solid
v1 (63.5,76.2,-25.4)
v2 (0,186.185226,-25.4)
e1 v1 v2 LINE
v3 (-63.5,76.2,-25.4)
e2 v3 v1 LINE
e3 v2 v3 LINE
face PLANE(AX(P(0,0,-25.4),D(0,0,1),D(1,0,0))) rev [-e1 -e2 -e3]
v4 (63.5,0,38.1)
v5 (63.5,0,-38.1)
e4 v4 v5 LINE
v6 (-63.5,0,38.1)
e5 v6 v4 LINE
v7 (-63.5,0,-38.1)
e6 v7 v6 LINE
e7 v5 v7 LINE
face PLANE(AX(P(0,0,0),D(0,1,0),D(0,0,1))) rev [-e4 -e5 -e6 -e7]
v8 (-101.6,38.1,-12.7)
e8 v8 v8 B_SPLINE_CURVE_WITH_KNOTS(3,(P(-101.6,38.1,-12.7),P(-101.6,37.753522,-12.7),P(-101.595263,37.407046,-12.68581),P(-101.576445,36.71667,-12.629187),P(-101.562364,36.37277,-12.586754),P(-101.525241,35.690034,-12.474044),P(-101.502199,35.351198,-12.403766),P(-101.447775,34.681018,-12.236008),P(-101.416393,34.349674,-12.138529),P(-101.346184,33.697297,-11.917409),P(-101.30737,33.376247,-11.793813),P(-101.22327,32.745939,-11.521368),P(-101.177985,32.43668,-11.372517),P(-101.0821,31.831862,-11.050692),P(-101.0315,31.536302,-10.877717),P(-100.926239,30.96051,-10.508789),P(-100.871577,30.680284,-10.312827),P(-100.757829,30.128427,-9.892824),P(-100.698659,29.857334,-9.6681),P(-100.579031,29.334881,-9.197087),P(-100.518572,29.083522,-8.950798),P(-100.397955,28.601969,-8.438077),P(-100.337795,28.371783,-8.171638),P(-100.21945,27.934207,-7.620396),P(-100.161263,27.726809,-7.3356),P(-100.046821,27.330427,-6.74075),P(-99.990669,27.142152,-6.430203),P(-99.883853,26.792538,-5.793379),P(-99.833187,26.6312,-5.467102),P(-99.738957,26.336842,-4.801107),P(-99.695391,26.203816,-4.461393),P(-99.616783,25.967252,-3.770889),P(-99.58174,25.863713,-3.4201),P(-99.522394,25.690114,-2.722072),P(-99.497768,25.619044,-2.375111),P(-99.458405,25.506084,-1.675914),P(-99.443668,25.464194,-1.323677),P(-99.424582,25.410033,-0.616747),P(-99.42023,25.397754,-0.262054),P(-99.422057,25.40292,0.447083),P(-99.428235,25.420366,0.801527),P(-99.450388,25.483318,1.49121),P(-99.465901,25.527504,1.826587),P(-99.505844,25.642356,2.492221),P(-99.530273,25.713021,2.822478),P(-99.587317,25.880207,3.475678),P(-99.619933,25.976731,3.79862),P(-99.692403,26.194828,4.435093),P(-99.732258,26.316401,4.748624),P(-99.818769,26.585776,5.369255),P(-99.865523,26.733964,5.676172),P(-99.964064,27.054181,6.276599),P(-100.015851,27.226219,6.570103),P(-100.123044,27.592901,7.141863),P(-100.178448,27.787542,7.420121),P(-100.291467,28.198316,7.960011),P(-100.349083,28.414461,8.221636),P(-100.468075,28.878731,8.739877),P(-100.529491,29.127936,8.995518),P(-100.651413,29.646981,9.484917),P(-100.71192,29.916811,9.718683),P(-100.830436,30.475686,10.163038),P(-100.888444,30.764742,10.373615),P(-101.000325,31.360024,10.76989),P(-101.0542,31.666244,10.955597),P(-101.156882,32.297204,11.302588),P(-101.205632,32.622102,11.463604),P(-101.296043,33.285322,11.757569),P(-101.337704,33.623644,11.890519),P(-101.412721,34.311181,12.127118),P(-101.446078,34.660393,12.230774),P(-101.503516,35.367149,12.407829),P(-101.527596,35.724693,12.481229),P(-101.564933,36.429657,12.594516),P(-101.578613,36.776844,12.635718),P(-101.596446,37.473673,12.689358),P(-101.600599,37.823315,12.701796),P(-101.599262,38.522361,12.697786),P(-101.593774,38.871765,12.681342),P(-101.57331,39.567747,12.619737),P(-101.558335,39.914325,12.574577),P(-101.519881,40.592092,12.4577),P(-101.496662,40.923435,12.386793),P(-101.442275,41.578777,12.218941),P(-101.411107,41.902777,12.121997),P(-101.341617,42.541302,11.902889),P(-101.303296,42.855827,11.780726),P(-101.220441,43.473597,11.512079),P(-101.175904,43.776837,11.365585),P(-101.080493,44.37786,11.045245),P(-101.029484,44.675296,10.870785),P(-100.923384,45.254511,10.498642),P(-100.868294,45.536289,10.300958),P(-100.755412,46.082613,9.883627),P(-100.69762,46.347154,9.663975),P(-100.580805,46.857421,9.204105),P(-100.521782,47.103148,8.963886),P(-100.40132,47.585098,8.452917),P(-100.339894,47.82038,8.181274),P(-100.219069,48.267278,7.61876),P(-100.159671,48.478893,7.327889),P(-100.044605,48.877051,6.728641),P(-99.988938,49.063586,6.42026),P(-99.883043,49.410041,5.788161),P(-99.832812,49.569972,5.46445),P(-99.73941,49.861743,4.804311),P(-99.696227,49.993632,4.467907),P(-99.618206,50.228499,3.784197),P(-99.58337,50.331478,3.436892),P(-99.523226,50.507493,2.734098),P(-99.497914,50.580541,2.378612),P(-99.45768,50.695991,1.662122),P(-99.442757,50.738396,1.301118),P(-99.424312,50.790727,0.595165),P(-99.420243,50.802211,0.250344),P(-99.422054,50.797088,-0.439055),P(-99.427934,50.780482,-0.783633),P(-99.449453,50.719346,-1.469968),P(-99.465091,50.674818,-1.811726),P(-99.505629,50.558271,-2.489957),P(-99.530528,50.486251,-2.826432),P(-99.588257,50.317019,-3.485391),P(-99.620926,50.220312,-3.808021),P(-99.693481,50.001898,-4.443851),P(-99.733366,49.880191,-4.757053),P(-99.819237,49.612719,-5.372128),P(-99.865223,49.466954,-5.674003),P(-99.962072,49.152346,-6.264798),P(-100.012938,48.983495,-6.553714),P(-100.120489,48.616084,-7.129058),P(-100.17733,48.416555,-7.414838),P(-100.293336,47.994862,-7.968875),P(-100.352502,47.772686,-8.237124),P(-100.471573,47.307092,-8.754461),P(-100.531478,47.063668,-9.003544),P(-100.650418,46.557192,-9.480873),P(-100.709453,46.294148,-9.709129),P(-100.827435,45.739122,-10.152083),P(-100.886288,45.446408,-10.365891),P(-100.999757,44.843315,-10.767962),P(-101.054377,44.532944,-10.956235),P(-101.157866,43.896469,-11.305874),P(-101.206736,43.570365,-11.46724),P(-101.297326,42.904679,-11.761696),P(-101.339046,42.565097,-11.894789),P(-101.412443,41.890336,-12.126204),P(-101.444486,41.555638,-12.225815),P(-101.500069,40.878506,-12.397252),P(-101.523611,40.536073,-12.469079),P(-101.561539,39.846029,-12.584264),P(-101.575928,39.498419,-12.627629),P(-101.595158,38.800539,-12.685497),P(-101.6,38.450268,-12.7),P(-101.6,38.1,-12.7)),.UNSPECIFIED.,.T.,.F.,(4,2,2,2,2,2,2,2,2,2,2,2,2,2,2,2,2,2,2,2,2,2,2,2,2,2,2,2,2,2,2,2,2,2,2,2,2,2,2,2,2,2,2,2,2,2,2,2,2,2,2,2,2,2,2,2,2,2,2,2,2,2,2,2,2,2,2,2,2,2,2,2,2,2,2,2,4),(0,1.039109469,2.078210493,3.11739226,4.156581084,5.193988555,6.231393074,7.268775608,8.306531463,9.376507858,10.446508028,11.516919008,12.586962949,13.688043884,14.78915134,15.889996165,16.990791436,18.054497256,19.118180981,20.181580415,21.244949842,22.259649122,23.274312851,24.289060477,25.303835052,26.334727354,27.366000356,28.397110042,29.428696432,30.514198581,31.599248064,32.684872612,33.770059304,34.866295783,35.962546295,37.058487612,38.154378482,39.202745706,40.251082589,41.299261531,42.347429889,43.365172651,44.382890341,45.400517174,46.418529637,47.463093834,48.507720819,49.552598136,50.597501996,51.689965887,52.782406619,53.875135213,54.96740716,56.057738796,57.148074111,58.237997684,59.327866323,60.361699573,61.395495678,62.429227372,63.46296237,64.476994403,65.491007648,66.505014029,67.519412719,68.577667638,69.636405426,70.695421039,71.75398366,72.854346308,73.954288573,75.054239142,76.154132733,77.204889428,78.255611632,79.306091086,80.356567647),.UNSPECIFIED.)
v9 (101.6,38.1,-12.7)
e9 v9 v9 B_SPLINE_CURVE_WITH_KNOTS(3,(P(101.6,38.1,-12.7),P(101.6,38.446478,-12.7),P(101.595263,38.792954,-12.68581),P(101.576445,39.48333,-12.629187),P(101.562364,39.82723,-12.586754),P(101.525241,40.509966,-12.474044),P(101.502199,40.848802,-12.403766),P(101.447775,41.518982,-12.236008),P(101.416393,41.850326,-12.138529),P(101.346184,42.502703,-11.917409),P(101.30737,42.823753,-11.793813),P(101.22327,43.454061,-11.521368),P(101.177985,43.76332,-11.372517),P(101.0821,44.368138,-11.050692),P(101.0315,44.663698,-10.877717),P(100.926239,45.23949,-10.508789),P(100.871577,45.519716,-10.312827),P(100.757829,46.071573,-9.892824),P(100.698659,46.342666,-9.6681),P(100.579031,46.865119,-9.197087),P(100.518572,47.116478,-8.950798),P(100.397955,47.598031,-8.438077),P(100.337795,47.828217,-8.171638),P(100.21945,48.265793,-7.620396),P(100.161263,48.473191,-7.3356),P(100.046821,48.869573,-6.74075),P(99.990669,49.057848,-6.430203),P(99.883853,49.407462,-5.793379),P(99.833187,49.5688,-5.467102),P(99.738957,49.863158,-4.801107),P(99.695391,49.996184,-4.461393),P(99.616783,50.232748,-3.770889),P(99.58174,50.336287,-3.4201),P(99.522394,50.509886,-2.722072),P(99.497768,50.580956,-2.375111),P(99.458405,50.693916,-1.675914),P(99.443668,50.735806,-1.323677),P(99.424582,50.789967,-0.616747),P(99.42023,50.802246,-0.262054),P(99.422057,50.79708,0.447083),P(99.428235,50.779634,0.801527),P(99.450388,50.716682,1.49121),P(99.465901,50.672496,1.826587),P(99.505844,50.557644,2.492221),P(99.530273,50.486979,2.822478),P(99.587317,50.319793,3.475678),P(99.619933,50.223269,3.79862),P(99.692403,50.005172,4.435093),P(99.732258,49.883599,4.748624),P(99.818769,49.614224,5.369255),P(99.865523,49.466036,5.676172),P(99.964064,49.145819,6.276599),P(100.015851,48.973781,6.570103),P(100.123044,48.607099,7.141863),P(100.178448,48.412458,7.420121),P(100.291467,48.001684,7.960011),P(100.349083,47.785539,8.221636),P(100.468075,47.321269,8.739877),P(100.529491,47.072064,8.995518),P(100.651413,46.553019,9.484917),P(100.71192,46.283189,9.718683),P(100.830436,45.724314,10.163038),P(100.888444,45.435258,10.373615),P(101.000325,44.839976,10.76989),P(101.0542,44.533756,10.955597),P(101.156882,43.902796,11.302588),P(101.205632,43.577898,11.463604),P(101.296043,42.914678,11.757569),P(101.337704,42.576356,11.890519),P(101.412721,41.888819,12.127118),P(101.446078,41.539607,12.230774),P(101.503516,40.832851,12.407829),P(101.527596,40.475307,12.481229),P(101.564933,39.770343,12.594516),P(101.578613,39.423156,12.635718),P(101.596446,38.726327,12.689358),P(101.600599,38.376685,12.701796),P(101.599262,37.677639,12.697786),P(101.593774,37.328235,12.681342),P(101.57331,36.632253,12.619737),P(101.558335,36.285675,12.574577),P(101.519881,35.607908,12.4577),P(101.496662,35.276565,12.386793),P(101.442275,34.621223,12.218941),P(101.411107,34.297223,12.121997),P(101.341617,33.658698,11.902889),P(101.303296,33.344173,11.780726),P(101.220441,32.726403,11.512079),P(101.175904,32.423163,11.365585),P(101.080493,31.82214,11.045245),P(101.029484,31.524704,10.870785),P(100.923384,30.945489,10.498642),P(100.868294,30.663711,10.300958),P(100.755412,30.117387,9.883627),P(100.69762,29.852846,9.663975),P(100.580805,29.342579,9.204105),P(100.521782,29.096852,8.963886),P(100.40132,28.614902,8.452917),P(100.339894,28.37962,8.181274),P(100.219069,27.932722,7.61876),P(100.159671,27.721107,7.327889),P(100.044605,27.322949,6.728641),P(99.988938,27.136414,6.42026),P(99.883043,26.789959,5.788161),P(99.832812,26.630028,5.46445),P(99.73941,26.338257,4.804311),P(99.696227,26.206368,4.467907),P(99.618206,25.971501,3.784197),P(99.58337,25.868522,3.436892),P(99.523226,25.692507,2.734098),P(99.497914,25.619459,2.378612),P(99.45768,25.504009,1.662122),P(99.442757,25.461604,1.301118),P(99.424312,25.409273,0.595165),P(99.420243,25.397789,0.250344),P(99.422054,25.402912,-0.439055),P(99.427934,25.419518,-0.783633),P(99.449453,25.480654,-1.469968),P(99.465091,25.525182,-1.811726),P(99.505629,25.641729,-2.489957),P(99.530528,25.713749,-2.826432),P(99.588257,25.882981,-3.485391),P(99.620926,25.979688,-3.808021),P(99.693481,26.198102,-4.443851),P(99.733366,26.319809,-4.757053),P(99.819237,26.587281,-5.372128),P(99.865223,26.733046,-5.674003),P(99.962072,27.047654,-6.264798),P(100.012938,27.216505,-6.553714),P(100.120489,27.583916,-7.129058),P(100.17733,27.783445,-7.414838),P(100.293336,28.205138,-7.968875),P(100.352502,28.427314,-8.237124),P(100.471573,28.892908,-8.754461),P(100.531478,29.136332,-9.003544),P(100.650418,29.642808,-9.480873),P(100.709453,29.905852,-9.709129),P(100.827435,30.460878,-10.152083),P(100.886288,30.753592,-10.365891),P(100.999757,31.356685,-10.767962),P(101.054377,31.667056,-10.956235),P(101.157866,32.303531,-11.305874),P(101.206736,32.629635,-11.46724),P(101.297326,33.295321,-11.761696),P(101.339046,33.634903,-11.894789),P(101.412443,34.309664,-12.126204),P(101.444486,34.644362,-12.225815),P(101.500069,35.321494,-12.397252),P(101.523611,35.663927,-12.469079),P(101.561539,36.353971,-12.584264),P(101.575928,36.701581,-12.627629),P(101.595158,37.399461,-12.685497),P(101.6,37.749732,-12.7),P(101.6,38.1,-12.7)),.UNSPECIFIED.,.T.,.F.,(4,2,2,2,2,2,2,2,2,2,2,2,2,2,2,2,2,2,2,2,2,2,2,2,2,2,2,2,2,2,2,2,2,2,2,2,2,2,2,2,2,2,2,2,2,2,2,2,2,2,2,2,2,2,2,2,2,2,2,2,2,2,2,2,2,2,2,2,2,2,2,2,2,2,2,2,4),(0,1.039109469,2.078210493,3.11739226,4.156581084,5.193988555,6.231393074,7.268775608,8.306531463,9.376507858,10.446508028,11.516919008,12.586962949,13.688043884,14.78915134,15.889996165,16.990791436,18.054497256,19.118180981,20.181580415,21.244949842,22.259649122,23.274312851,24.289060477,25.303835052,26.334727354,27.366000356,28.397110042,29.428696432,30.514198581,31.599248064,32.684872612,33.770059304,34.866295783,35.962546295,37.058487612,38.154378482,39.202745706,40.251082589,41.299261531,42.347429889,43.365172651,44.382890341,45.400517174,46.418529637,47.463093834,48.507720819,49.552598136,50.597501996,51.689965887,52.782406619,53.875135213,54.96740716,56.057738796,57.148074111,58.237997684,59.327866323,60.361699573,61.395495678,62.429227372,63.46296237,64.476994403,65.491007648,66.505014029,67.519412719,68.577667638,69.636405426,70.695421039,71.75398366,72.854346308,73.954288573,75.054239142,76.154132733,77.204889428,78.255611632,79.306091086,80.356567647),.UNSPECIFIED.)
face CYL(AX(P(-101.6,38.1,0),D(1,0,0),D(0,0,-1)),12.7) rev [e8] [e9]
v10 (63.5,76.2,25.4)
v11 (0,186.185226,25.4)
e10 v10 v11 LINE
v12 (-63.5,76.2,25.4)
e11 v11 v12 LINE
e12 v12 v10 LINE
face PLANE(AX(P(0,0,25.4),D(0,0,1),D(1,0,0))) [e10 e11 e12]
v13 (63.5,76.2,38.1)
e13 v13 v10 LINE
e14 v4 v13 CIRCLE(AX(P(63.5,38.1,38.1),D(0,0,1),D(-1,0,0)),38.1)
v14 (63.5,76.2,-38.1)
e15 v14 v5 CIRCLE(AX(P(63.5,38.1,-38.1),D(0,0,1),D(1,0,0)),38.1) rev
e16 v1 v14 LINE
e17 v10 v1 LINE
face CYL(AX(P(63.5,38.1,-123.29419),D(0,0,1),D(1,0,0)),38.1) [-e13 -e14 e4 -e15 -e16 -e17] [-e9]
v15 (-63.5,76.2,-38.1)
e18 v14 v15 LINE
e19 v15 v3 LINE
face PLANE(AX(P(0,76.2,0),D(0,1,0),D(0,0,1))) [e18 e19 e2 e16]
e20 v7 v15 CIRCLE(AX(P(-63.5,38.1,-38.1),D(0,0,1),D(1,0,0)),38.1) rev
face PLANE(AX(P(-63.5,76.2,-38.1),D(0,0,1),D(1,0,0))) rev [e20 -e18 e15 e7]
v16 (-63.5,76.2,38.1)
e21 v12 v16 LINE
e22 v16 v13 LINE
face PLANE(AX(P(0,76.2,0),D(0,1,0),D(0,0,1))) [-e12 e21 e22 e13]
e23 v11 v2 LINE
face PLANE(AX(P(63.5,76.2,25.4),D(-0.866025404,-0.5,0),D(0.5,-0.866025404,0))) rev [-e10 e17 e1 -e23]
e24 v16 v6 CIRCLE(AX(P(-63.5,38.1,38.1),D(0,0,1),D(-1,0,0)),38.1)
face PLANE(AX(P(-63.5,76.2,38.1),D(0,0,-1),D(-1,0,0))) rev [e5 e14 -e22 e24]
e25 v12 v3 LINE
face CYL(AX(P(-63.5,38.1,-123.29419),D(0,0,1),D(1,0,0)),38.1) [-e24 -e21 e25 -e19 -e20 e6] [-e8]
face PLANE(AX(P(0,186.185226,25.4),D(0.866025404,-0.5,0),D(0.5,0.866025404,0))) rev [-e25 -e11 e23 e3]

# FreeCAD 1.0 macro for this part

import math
import FreeCAD as App
import Part
import Sketcher
Q = App.Units.Quantity

doc = App.newDocument("Part")
body = doc.addObject("PartDesign::Body", "Body")

# Sketch on XZ plane
sketch1 = doc.addObject("Sketcher::SketchObject", "Sketch")
body.addObject(sketch1)
sketch1.AttachmentSupport = (doc.XZ_Plane, [""])
sketch1.MapMode = "FlatFace"
sketch1.addGeometry(Part.LineSegment(App.Vector(-64, -38, 0), App.Vector(-64, 38, 0)), False)
sketch1.addGeometry(Part.LineSegment(App.Vector(-64, 38, 0), App.Vector(64, 38, 0)), False)
sketch1.addGeometry(Part.LineSegment(App.Vector(64, 38, 0), App.Vector(64, -38, 0)), False)
sketch1.addGeometry(Part.LineSegment(App.Vector(64, -38, 0), App.Vector(-64, -38, 0)), False)
sketch1.addConstraint(Sketcher.Constraint("Coincident", 0, 2, 1, 1))
sketch1.addConstraint(Sketcher.Constraint("Coincident", 1, 2, 2, 1))
sketch1.addConstraint(Sketcher.Constraint("Coincident", 2, 2, 3, 1))
sketch1.addConstraint(Sketcher.Constraint("Coincident", 3, 2, 0, 1))
sketch1.addConstraint(Sketcher.Constraint("Vertical", 0))
sketch1.addConstraint(Sketcher.Constraint("Horizontal", 1))
sketch1.addConstraint(Sketcher.Constraint("Vertical", 2))
sketch1.addConstraint(Sketcher.Constraint("Horizontal", 3))
sketch1.addConstraint(Sketcher.Constraint("Symmetric", 0, 2, 2, 2, -1, 1))
sketch1.addConstraint(Sketcher.Constraint("DistanceX", 1, 1, 1, 2, Q("5 in")))
sketch1.addConstraint(Sketcher.Constraint("DistanceY", 0, 1, 0, 2, Q("3 in")))
pad1 = doc.addObject("PartDesign::Pad", "Pad")
body.addObject(pad1)
pad1.Profile = sketch1
pad1.Length = Q("3 in")
pad1.Reversed = True

# Sketch on XY plane
sketch2 = doc.addObject("Sketcher::SketchObject", "Sketch001")
body.addObject(sketch2)
sketch2.AttachmentSupport = (doc.XY_Plane, [""])
sketch2.MapMode = "FlatFace"
sketch2.AttachmentOffset = App.Placement(App.Vector(0, 0, 1.5 * 25.4), App.Rotation())
sketch2.addGeometry(Part.LineSegment(App.Vector(-64, 0, 0), App.Vector(-64, 76, 0)), False)
sketch2.addGeometry(Part.ArcOfCircle(Part.Circle(App.Vector(-64, 38, 0), App.Vector(0, 0, 1), 38), math.radians(90), math.radians(270)), False)
sketch2.addGeometry(Part.LineSegment(App.Vector(64, 76, 0), App.Vector(64, 0, 0)), False)
sketch2.addGeometry(Part.ArcOfCircle(Part.Circle(App.Vector(64, 38, 0), App.Vector(0, 0, 1), 38), math.radians(-90), math.radians(90)), False)
sketch2.addConstraint(Sketcher.Constraint("Coincident", 0, 1, 1, 2))
sketch2.addConstraint(Sketcher.Constraint("Coincident", 1, 1, 0, 2))
sketch2.addConstraint(Sketcher.Constraint("Coincident", 2, 1, 3, 2))
sketch2.addConstraint(Sketcher.Constraint("Coincident", 3, 1, 2, 2))
sketch2.addConstraint(Sketcher.Constraint("Vertical", 0))
sketch2.addConstraint(Sketcher.Constraint("Vertical", 2))
sketch2.addConstraint(Sketcher.Constraint("Equal", 1, 3))
sketch2.addConstraint(Sketcher.Constraint("Symmetric", 0, 1, 3, 1, -1, 1))
sketch2.addConstraint(Sketcher.Constraint("Symmetric", 1, 3, 3, 3, -2))
sketch2.addConstraint(Sketcher.Constraint("Vertical", 1, 3, 0, 1))
sketch2.addConstraint(Sketcher.Constraint("Radius", 1, Q("1.5 in")))
sketch2.addConstraint(Sketcher.Constraint("DistanceX", 1, 3, 3, 3, Q("5 in")))
pad2 = doc.addObject("PartDesign::Pad", "Pad001")
body.addObject(pad2)
pad2.Profile = sketch2
pad2.Length = Q("3 in")
pad2.Reversed = True

# Sketch on XY plane
sketch3 = doc.addObject("Sketcher::SketchObject", "Sketch002")
body.addObject(sketch3)
sketch3.AttachmentSupport = (doc.XY_Plane, [""])
sketch3.MapMode = "FlatFace"
sketch3.addGeometry(Part.LineSegment(App.Vector(-64, 76, 0), App.Vector(64, 76, 0)), False)
sketch3.addGeometry(Part.LineSegment(App.Vector(64, 76, 0), App.Vector(0, 186, 0)), False)
sketch3.addGeometry(Part.LineSegment(App.Vector(0, 186, 0), App.Vector(-64, 76, 0)), False)
sketch3.addConstraint(Sketcher.Constraint("Coincident", 0, 2, 1, 1))
sketch3.addConstraint(Sketcher.Constraint("Coincident", 1, 2, 2, 1))
sketch3.addConstraint(Sketcher.Constraint("Coincident", 2, 2, 0, 1))
sketch3.addConstraint(Sketcher.Constraint("Horizontal", 0))
sketch3.addConstraint(Sketcher.Constraint("PointOnObject", 1, 2, -2))
sketch3.addConstraint(Sketcher.Constraint("Equal", 1, 2))
sketch3.addConstraint(Sketcher.Constraint("DistanceX", 0, 1, 0, 2, Q("5 in")))
sketch3.addConstraint(Sketcher.Constraint("Distance", 1, Q("5 in")))
sketch3.addConstraint(Sketcher.Constraint("DistanceY", -1, 1, 0, 2, Q("3 in")))
pad3 = doc.addObject("PartDesign::Pad", "Pad002")
body.addObject(pad3)
pad3.Profile = sketch3
pad3.Length = Q("2 in")
pad3.Midplane = True

# Sketch on YZ plane
sketch4 = doc.addObject("Sketcher::SketchObject", "Sketch003")
body.addObject(sketch4)
sketch4.AttachmentSupport = (doc.YZ_Plane, [""])
sketch4.MapMode = "FlatFace"
sketch4.addGeometry(Part.Circle(App.Vector(38, 0, 0), App.Vector(0, 0, 1), 13), False)
sketch4.addConstraint(Sketcher.Constraint("PointOnObject", 0, 3, -1))
sketch4.addConstraint(Sketcher.Constraint("Diameter", 0, Q("1 in")))
sketch4.addConstraint(Sketcher.Constraint("DistanceX", -1, 1, 0, 3, Q("1.5 in")))
pocket1 = doc.addObject("PartDesign::Pocket", "Pocket")
body.addObject(pocket1)
pocket1.Profile = sketch4
pocket1.Type = "ThroughAll"
pocket1.Midplane = True

doc.recompute()
